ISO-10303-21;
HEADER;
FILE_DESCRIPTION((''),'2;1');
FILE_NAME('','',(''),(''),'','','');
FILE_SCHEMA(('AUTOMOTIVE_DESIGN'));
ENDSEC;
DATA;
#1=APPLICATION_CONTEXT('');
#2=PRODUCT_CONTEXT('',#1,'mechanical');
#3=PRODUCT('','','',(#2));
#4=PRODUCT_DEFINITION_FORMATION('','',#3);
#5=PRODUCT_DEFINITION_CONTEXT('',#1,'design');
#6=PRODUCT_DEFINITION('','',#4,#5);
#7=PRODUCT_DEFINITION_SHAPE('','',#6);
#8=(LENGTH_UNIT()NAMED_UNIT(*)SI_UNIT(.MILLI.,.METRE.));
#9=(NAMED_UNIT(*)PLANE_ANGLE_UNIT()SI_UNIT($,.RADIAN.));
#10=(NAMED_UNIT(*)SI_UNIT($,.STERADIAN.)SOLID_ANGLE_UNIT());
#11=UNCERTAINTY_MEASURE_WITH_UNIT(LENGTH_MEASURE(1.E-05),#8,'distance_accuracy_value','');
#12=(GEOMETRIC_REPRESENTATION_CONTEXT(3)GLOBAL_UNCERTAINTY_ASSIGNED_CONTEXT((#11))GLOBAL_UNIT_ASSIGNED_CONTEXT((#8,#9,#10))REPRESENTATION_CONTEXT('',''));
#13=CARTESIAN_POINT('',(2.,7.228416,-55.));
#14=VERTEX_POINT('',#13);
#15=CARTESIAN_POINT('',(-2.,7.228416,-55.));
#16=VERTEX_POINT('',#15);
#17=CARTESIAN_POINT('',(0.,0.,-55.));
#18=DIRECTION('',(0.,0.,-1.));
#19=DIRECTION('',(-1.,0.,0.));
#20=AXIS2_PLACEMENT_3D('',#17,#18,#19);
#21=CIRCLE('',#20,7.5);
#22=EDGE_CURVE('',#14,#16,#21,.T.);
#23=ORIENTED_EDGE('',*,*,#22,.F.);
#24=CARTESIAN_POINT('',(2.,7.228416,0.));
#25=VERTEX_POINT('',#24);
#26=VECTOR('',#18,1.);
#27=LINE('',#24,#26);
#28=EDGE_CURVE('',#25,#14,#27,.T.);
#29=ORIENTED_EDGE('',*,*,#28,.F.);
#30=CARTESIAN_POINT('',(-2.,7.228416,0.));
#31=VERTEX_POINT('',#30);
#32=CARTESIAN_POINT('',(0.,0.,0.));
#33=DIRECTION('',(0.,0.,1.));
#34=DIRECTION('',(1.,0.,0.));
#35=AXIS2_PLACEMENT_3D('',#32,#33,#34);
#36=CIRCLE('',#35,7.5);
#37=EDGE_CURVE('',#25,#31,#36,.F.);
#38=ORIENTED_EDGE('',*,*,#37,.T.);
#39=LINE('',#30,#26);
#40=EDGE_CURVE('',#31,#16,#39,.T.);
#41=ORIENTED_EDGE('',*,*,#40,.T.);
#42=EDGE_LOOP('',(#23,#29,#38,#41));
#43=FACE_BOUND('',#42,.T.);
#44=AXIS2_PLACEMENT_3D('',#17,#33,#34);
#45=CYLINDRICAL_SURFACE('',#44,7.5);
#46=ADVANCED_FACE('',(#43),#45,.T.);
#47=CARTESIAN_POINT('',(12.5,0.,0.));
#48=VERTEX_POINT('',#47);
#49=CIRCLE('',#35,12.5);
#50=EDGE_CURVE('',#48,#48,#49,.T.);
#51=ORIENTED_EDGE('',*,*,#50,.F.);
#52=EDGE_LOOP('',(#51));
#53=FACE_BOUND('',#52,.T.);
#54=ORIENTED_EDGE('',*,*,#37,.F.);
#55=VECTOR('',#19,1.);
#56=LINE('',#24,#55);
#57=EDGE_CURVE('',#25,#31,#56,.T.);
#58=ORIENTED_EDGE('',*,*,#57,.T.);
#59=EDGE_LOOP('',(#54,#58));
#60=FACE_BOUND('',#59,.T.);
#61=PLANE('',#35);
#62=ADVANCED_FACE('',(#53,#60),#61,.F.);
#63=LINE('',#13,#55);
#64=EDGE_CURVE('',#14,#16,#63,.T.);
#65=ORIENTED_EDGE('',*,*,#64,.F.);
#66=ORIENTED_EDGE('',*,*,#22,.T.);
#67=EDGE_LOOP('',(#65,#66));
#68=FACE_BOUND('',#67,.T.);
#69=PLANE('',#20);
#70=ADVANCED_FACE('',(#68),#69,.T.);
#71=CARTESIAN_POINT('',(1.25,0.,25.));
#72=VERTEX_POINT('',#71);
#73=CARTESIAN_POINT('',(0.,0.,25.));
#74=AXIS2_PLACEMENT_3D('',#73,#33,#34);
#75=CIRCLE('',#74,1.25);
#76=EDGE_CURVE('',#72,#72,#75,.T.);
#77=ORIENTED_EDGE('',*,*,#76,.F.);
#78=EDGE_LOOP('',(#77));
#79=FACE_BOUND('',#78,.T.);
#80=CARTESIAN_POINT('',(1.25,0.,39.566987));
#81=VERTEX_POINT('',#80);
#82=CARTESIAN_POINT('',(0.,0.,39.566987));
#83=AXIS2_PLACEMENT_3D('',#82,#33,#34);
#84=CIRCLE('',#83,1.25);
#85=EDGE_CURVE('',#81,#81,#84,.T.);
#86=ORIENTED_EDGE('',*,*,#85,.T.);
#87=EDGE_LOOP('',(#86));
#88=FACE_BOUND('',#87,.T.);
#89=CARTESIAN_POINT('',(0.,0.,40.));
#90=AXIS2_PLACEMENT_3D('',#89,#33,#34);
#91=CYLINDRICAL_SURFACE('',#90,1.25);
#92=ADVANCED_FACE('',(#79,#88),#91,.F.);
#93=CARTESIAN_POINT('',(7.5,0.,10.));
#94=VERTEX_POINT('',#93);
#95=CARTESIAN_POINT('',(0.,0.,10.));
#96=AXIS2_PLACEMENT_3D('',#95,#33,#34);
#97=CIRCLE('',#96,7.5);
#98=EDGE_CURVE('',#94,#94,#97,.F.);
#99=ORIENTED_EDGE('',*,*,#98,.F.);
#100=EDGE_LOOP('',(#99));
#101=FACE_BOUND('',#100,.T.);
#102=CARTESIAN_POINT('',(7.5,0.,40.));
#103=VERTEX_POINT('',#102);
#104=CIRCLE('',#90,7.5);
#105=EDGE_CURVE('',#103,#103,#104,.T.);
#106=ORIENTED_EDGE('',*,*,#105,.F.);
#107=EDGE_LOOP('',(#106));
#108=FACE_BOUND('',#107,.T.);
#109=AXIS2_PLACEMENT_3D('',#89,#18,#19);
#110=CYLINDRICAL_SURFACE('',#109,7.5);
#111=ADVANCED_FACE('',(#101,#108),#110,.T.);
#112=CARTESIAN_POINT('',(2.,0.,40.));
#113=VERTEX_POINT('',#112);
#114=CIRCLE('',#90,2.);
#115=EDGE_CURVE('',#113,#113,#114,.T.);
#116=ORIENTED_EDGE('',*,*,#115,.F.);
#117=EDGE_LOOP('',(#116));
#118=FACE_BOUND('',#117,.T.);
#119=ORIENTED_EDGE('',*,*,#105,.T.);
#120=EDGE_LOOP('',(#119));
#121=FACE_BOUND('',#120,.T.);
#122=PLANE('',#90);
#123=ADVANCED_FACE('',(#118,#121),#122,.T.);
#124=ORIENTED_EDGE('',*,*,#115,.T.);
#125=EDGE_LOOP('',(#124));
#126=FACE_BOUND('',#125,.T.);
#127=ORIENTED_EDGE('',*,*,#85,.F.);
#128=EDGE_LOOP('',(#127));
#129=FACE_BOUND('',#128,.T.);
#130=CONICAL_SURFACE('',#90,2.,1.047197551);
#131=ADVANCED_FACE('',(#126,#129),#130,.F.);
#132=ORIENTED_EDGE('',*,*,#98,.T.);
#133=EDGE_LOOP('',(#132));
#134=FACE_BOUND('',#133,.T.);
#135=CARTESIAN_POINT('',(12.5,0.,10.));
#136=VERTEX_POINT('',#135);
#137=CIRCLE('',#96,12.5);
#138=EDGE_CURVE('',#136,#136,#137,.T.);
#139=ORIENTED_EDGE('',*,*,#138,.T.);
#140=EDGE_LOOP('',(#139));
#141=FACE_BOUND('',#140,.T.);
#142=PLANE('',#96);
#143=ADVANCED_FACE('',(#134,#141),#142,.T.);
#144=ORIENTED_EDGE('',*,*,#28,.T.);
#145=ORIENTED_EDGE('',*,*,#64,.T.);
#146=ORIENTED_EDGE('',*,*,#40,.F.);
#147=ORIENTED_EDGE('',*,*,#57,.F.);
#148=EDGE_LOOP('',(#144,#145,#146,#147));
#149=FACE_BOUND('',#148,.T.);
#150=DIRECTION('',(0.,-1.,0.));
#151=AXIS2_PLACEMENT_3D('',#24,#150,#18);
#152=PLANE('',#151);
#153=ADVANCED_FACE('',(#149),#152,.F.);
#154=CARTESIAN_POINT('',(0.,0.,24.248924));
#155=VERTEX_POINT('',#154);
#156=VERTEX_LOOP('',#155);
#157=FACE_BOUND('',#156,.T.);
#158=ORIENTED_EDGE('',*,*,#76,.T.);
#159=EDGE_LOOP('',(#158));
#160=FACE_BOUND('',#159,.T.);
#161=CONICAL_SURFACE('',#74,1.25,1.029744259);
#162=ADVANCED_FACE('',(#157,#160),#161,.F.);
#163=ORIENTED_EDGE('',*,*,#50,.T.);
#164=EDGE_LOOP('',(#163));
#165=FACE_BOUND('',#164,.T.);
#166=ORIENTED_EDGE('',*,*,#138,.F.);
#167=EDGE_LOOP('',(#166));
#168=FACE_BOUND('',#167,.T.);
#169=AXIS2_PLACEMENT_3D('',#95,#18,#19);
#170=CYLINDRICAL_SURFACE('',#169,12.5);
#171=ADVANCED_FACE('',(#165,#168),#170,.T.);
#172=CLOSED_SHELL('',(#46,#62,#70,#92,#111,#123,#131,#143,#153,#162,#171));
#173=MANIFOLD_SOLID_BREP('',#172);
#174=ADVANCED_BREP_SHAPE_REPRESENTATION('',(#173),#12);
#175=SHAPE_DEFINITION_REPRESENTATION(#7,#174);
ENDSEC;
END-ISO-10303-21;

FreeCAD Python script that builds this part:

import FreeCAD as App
import Part
import Sketcher
Q = App.Units.Quantity

doc = App.newDocument("Part")
body = doc.addObject("PartDesign::Body", "Body")

sketch1 = doc.addObject("Sketcher::SketchObject", "Sketch")
body.addObject(sketch1)
sketch1.AttachmentSupport = (doc.XY_Plane, [""])
sketch1.MapMode = "FlatFace"
sketch1.addGeometry(Part.Circle(App.Vector(0, 0, 0), App.Vector(0, 0, 1), 12.5), False)
sketch1.addConstraint([
    Sketcher.Constraint("Coincident", 0, 3, -1, 1),
    Sketcher.Constraint("Diameter", 0, Q("25 mm")),
])
pad1 = doc.addObject("PartDesign::Pad", "Pad")
body.addObject(pad1)
pad1.Profile = sketch1
pad1.Length = 10

sketch2 = doc.addObject("Sketcher::SketchObject", "Sketch001")
body.addObject(sketch2)
sketch2.AttachmentSupport = (doc.XY_Plane, [""])
sketch2.MapMode = "FlatFace"
sketch2.addGeometry(Part.Circle(App.Vector(0, 0, 0), App.Vector(0, 0, 1), 7.5), False)
sketch2.addConstraint([
    Sketcher.Constraint("Coincident", 0, 3, -1, 1),
    Sketcher.Constraint("Diameter", 0, Q("15 mm")),
])
pad2 = doc.addObject("PartDesign::Pad", "Pad001")
body.addObject(pad2)
pad2.Profile = sketch2
pad2.Length = 40

sketch3 = doc.addObject("Sketcher::SketchObject", "Sketch002")
body.addObject(sketch3)
sketch3.AttachmentSupport = (doc.XY_Plane, [""])
sketch3.MapMode = "FlatFace"
sketch3.AttachmentOffset = App.Placement(App.Vector(0, 0, -55), App.Rotation())
sketch3.addGeometry(Part.Circle(App.Vector(0, 0, 0), App.Vector(0, 0, 1), 7.5), False)
sketch3.addConstraint([
    Sketcher.Constraint("Coincident", 0, 3, -1, 1),
    Sketcher.Constraint("Diameter", 0, Q("15 mm")),
])
pad3 = doc.addObject("PartDesign::Pad", "Pad002")
body.addObject(pad3)
pad3.Profile = sketch3
pad3.Length = 55

sketch4 = doc.addObject("Sketcher::SketchObject", "Sketch003")
body.addObject(sketch4)
sketch4.AttachmentSupport = (doc.XY_Plane, [""])
sketch4.MapMode = "FlatFace"
sketch4.AttachmentOffset = App.Placement(App.Vector(0, 0, 40), App.Rotation())
sketch4.addGeometry(Part.Circle(App.Vector(0, 0, 0), App.Vector(0, 0, 1), 1.25), False)
sketch4.addConstraint([
    Sketcher.Constraint("Coincident", 0, 3, -1, 1),
    Sketcher.Constraint("Diameter", 0, Q("2.5 mm")),
])
doc.recompute()
hole = doc.addObject("PartDesign::Hole", "Hole")
body.addObject(hole)
hole.Profile = sketch4
hole.ThreadType = "None"
hole.Diameter = 2.5
hole.DepthType = "Dimension"
hole.Depth = 15
hole.DrillPoint = "Angled"
hole.DrillPointAngle = 118
hole.HoleCutType = "Countersink"
hole.HoleCutDiameter = 4
hole.HoleCutCountersinkAngle = 120

sketch5 = doc.addObject("Sketcher::SketchObject", "Sketch004")
body.addObject(sketch5)
sketch5.AttachmentSupport = (doc.XY_Plane, [""])
sketch5.MapMode = "FlatFace"
sketch5.AttachmentOffset = App.Placement(App.Vector(0, 0, -55), App.Rotation())
sketch5.addGeometry([
    Part.LineSegment(App.Vector(2, 10.253849, 0), App.Vector(2, 7.228416, 0)),
    Part.LineSegment(App.Vector(2, 7.228416, 0), App.Vector(-2, 7.228416, 0)),
    Part.LineSegment(App.Vector(-2, 7.228416, 0), App.Vector(-2, 10.253849, 0)),
    Part.LineSegment(App.Vector(-2, 10.253849, 0), App.Vector(2, 10.253849, 0)),
], False)
sketch5.addConstraint([
    Sketcher.Constraint("Coincident", 0, 2, 1, 1),
    Sketcher.Constraint("Coincident", 1, 2, 2, 1),
    Sketcher.Constraint("Coincident", 2, 2, 3, 1),
    Sketcher.Constraint("Coincident", 3, 2, 0, 1),
    Sketcher.Constraint("Vertical", 0),
    Sketcher.Constraint("Horizontal", 1),
    Sketcher.Constraint("Vertical", 2),
    Sketcher.Constraint("Horizontal", 3),
    Sketcher.Constraint("DistanceX", 1, 2, 1, 1, Q("4 mm")),
    Sketcher.Constraint("DistanceX", -1, 1, 0, 2, Q("2 mm")),
    Sketcher.Constraint("DistanceY", 0, 2, 0, 1, Q("3.025433 mm")),
    Sketcher.Constraint("DistanceY", -1, 1, 2, 2, Q("10.253849 mm")),
])
pocket1 = doc.addObject("PartDesign::Pocket", "Pocket")
body.addObject(pocket1)
pocket1.Profile = sketch5
pocket1.Length = 55
pocket1.Reversed = True

doc.recompute()
